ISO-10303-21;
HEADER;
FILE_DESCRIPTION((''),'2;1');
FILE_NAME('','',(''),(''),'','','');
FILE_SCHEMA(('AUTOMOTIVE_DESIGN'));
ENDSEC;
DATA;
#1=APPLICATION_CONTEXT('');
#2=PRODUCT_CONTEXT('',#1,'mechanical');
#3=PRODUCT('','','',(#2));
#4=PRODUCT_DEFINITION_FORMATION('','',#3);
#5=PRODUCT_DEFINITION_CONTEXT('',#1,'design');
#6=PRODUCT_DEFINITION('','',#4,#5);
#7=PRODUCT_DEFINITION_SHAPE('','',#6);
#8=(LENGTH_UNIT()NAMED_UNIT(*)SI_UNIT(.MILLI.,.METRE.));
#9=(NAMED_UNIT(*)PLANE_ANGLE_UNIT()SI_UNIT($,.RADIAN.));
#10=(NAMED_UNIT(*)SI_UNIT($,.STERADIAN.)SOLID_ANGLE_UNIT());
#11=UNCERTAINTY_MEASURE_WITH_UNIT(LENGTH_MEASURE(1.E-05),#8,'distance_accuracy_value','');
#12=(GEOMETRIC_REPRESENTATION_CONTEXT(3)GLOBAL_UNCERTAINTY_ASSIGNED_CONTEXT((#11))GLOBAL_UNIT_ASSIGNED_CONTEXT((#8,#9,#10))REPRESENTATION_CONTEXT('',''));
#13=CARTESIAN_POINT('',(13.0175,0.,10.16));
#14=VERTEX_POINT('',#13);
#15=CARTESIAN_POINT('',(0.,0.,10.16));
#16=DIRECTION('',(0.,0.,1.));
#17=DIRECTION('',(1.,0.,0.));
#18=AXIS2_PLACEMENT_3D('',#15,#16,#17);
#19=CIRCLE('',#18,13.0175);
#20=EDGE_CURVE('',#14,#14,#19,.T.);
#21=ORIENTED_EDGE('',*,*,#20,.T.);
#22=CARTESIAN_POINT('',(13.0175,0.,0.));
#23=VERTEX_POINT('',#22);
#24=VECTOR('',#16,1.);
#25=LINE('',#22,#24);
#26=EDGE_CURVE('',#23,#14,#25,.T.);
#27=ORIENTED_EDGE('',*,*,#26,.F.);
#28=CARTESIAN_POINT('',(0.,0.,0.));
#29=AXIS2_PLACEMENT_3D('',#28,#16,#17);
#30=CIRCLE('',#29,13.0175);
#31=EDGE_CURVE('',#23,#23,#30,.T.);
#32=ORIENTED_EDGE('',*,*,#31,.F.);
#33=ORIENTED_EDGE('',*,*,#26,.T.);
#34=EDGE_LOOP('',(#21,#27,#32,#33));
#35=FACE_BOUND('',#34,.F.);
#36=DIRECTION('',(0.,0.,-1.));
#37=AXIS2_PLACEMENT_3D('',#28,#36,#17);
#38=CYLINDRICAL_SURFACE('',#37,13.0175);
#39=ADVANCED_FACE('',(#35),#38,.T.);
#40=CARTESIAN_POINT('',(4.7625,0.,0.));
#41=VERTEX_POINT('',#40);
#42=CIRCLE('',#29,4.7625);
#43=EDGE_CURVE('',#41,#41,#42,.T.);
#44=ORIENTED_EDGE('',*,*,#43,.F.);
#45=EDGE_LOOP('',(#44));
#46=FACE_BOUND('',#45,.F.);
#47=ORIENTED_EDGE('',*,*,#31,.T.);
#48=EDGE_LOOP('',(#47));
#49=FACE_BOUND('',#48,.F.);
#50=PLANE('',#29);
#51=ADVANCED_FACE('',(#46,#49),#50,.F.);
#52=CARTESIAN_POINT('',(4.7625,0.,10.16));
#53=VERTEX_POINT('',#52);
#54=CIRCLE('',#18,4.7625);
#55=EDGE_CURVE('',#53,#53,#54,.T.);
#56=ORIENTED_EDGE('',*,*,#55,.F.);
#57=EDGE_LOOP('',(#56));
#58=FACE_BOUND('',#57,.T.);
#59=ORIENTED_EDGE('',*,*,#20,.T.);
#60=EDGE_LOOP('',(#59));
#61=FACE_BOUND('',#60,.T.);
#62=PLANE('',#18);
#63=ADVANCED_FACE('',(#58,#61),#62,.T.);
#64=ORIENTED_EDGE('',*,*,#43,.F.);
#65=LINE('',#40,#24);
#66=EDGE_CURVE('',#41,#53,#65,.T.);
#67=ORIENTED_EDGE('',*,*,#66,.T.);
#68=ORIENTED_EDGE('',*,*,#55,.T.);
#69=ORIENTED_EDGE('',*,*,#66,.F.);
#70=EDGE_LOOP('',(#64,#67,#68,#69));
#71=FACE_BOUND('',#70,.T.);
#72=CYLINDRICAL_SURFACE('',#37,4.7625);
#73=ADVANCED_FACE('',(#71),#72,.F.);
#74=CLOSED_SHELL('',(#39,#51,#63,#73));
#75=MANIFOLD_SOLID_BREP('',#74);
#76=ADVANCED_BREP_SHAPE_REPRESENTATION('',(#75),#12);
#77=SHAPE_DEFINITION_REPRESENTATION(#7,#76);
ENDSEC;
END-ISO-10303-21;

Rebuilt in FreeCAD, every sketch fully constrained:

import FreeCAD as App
import Part
import Sketcher
Q = App.Units.Quantity

doc = App.newDocument("Part")
body = doc.addObject("PartDesign::Body", "Body")

sketch1 = body.newObject("Sketcher::SketchObject", "Sketch")
sketch1.AttachmentSupport = (doc.getObject("XY_Plane"), [""])
sketch1.MapMode = "FlatFace"
sketch1.addGeometry(Part.Circle(App.Vector(0, 0, 0), App.Vector(0, 0, 1), 13), False)
sketch1.addGeometry(Part.Circle(App.Vector(0, 0, 0), App.Vector(0, 0, 1), 4.8), False)
sketch1.addConstraint(Sketcher.Constraint("Coincident", 0, 3, -1, 1))
sketch1.addConstraint(Sketcher.Constraint("Coincident", 1, 3, -1, 1))
sketch1.addConstraint(Sketcher.Constraint("Diameter", 0, Q("1.025 in")))
sketch1.addConstraint(Sketcher.Constraint("Diameter", 1, Q("0.375 in")))
pad1 = body.newObject("PartDesign::Pad", "Pad")
pad1.Profile = sketch1
pad1.Length = Q("0.4 in")

doc.recompute()
